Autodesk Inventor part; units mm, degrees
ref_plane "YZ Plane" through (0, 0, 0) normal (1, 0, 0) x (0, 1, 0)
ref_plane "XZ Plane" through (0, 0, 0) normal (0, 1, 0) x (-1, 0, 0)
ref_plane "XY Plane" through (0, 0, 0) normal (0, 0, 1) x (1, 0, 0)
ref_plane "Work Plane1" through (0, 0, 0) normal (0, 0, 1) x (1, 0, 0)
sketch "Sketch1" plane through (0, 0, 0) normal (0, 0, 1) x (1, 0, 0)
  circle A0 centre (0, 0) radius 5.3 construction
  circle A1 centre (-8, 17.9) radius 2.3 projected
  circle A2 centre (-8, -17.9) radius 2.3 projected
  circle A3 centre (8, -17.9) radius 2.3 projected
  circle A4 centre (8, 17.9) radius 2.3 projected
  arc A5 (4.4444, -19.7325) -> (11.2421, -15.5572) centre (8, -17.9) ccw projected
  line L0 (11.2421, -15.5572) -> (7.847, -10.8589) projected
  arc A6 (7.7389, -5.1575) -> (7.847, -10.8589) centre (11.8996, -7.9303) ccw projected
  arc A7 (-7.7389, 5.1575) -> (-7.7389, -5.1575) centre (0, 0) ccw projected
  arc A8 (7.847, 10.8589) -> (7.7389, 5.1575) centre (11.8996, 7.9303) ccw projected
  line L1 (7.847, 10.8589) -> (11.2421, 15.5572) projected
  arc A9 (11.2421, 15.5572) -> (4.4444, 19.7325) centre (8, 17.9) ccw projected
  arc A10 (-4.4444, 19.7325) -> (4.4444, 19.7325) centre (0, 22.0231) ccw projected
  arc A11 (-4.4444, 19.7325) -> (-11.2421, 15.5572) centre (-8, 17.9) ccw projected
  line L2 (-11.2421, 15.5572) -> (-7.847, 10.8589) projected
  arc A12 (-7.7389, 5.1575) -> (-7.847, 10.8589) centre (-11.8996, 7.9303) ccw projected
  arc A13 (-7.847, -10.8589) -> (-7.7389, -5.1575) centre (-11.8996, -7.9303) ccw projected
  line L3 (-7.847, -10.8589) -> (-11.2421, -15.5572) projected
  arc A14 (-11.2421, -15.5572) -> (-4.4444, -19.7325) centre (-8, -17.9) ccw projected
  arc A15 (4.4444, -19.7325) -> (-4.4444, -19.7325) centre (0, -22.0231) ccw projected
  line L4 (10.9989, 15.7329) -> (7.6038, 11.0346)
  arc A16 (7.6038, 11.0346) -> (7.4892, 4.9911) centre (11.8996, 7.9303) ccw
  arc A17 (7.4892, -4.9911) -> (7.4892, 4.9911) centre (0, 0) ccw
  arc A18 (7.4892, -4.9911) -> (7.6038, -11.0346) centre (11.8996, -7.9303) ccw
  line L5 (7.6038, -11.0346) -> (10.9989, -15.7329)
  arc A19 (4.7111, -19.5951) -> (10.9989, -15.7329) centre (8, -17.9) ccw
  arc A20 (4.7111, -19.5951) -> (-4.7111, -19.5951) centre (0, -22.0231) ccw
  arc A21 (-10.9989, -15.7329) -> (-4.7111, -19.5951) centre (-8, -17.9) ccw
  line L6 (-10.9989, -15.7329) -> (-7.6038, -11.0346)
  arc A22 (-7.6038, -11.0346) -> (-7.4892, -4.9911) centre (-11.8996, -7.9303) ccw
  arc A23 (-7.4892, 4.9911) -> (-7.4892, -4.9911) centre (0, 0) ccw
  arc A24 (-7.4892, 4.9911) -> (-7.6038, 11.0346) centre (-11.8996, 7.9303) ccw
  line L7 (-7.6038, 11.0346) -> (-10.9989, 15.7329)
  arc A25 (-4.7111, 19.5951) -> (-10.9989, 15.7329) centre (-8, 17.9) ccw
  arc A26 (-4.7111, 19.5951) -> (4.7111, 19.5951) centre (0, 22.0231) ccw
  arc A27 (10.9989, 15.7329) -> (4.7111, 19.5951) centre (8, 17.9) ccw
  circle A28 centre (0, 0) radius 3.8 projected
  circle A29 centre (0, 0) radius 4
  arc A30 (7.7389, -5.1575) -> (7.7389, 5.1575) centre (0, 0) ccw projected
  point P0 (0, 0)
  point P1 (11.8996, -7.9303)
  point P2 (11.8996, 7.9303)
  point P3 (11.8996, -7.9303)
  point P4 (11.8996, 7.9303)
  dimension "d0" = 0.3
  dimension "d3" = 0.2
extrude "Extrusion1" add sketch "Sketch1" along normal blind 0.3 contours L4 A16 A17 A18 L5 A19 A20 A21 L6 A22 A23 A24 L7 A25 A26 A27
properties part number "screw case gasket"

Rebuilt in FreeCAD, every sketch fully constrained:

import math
import FreeCAD as App
import Part
import Sketcher

V = App.Vector
Q = App.Units.Quantity

doc = App.newDocument("Part")
body = doc.addObject("PartDesign::Body", "Body")

sketch1 = body.newObject("Sketcher::SketchObject", "Sketch")
sketch1.AttachmentSupport = (doc.getObject("XY_Plane"), [""])
sketch1.MapMode = "FlatFace"
sketch1.addGeometry(Part.LineSegment(V(7.6, 11, 0), V(11, 15.7, 0)), False)
sketch1.addGeometry(Part.ArcOfCircle(Part.Circle(V(8, 17.9, 0), V(0, 0, 1), 3.7), math.radians(-36), math.radians(153)), False)
sketch1.addGeometry(Part.ArcOfCircle(Part.Circle(V(0, 22, 0), V(0, 0, 1), 5.3), math.radians(-153), math.radians(-27)), False)
sketch1.addGeometry(Part.ArcOfCircle(Part.Circle(V(-8, 17.9, 0), V(0, 0, 1), 3.7), math.radians(27), math.radians(216)), False)
sketch1.addGeometry(Part.LineSegment(V(-11, 15.7, 0), V(-7.6, 11, 0)), False)
sketch1.addGeometry(Part.ArcOfCircle(Part.Circle(V(-11.9, 7.9, 0), V(0, 0, 1), 5.3), math.radians(-34), math.radians(36)), False)
sketch1.addGeometry(Part.ArcOfCircle(Part.Circle(V(0, 0, 0), V(0, 0, 1), 9), math.radians(146), math.radians(214)), False)
sketch1.addGeometry(Part.ArcOfCircle(Part.Circle(V(-11.9, -7.9, 0), V(0, 0, 1), 5.3), math.radians(-36), math.radians(34)), False)
sketch1.addGeometry(Part.LineSegment(V(-7.6, -11, 0), V(-11, -15.7, 0)), False)
sketch1.addGeometry(Part.ArcOfCircle(Part.Circle(V(-8, -17.9, 0), V(0, 0, 1), 3.7), math.radians(144), math.radians(333)), False)
sketch1.addGeometry(Part.ArcOfCircle(Part.Circle(V(0, -22, 0), V(0, 0, 1), 5.3), math.radians(27), math.radians(153)), False)
sketch1.addGeometry(Part.ArcOfCircle(Part.Circle(V(8, -17.9, 0), V(0, 0, 1), 3.7), math.radians(-153), math.radians(36)), False)
sketch1.addGeometry(Part.LineSegment(V(11, -15.7, 0), V(7.6, -11, 0)), False)
sketch1.addGeometry(Part.ArcOfCircle(Part.Circle(V(11.9, -7.9, 0), V(0, 0, 1), 5.3), math.radians(146), math.radians(216)), False)
sketch1.addGeometry(Part.ArcOfCircle(Part.Circle(V(0, 0, 0), V(0, 0, 1), 9), math.radians(-34), math.radians(34)), False)
sketch1.addGeometry(Part.ArcOfCircle(Part.Circle(V(11.9, 7.9, 0), V(0, 0, 1), 5.3), math.radians(144), math.radians(214)), False)
sketch1.addGeometry(Part.Circle(V(-8, -17.9, 0), V(0, 0, 1), 2.3), False)
sketch1.addGeometry(Part.Circle(V(8, -17.9, 0), V(0, 0, 1), 2.3), False)
sketch1.addGeometry(Part.Circle(V(-8, 17.9, 0), V(0, 0, 1), 2.3), False)
sketch1.addGeometry(Part.Circle(V(0, 0, 0), V(0, 0, 1), 4), False)
sketch1.addGeometry(Part.Circle(V(8, 17.9, 0), V(0, 0, 1), 2.3), False)
sketch1.addConstraint(Sketcher.Constraint("Tangent", 0, 2, 1, 1))
sketch1.addConstraint(Sketcher.Constraint("Tangent", 1, 2, 2, 2))
sketch1.addConstraint(Sketcher.Constraint("Tangent", 2, 1, 3, 1))
sketch1.addConstraint(Sketcher.Constraint("Tangent", 3, 2, 4, 1))
sketch1.addConstraint(Sketcher.Constraint("Tangent", 4, 2, 5, 2))
sketch1.addConstraint(Sketcher.Constraint("Tangent", 5, 1, 6, 1))
sketch1.addConstraint(Sketcher.Constraint("Tangent", 6, 2, 7, 2))
sketch1.addConstraint(Sketcher.Constraint("Tangent", 7, 1, 8, 1))
sketch1.addConstraint(Sketcher.Constraint("Tangent", 8, 2, 9, 1))
sketch1.addConstraint(Sketcher.Constraint("Tangent", 9, 2, 10, 2))
sketch1.addConstraint(Sketcher.Constraint("Tangent", 10, 1, 11, 1))
sketch1.addConstraint(Sketcher.Constraint("Tangent", 11, 2, 12, 1))
sketch1.addConstraint(Sketcher.Constraint("Tangent", 12, 2, 13, 2))
sketch1.addConstraint(Sketcher.Constraint("Tangent", 13, 1, 14, 1))
sketch1.addConstraint(Sketcher.Constraint("Tangent", 14, 2, 15, 2))
sketch1.addConstraint(Sketcher.Constraint("Tangent", 15, 1, 0, 1))
sketch1.addConstraint(Sketcher.Constraint("Coincident", 6, 3, -1, 1))
sketch1.addConstraint(Sketcher.Constraint("Coincident", 14, 3, -1, 1))
sketch1.addConstraint(Sketcher.Constraint("Coincident", 19, 3, -1, 1))
sketch1.addConstraint(Sketcher.Constraint("Coincident", 16, 3, 9, 3))
sketch1.addConstraint(Sketcher.Constraint("Coincident", 17, 3, 11, 3))
sketch1.addConstraint(Sketcher.Constraint("Coincident", 18, 3, 3, 3))
sketch1.addConstraint(Sketcher.Constraint("Coincident", 20, 3, 1, 3))
sketch1.addConstraint(Sketcher.Constraint("Equal", 1, 3))
sketch1.addConstraint(Sketcher.Constraint("Equal", 2, 5))
sketch1.addConstraint(Sketcher.Constraint("Equal", 5, 7))
sketch1.addConstraint(Sketcher.Constraint("Equal", 3, 9))
sketch1.addConstraint(Sketcher.Constraint("Equal", 7, 10))
sketch1.addConstraint(Sketcher.Constraint("Equal", 9, 11))
sketch1.addConstraint(Sketcher.Constraint("Equal", 10, 13))
sketch1.addConstraint(Sketcher.Constraint("Equal", 6, 14))
sketch1.addConstraint(Sketcher.Constraint("Equal", 13, 15))
sketch1.addConstraint(Sketcher.Constraint("Equal", 16, 17))
sketch1.addConstraint(Sketcher.Constraint("Equal", 17, 18))
sketch1.addConstraint(Sketcher.Constraint("Equal", 18, 20))
sketch1.addConstraint(Sketcher.Constraint("Symmetric", 1, 3, 9, 3, -1, 1))
sketch1.addConstraint(Sketcher.Constraint("Symmetric", 3, 3, 11, 3, -1, 1))
sketch1.addConstraint(Sketcher.Constraint("Symmetric", 1, 3, 3, 3, -2))
sketch1.addConstraint(Sketcher.Constraint("Parallel", 0, 8))
sketch1.addConstraint(Sketcher.Constraint("Parallel", 4, 12))
sketch1.addConstraint(Sketcher.Constraint("Horizontal", 7, 3, 13, 3))
sketch1.addConstraint(Sketcher.Constraint("Diameter", 19, Q("8 mm")))
sketch1.addConstraint(Sketcher.Constraint("Radius", 6, Q("9 mm")))
sketch1.addConstraint(Sketcher.Constraint("Diameter", 16, Q("4.6 mm")))
sketch1.addConstraint(Sketcher.Constraint("Radius", 1, Q("3.7 mm")))
sketch1.addConstraint(Sketcher.Constraint("Radius", 2, Q("5.3 mm")))
sketch1.addConstraint(Sketcher.Constraint("DistanceX", -1, 1, 1, 3, Q("8 mm")))
sketch1.addConstraint(Sketcher.Constraint("DistanceY", -1, 1, 1, 3, Q("17.9 mm")))
sketch1.addConstraint(Sketcher.Constraint("DistanceX", -1, 1, 0, 2, Q("10.999 mm")))
pad1 = body.newObject("PartDesign::Pad", "Pad")
pad1.Profile = sketch1
pad1.Length = 0.3

doc.recompute()
